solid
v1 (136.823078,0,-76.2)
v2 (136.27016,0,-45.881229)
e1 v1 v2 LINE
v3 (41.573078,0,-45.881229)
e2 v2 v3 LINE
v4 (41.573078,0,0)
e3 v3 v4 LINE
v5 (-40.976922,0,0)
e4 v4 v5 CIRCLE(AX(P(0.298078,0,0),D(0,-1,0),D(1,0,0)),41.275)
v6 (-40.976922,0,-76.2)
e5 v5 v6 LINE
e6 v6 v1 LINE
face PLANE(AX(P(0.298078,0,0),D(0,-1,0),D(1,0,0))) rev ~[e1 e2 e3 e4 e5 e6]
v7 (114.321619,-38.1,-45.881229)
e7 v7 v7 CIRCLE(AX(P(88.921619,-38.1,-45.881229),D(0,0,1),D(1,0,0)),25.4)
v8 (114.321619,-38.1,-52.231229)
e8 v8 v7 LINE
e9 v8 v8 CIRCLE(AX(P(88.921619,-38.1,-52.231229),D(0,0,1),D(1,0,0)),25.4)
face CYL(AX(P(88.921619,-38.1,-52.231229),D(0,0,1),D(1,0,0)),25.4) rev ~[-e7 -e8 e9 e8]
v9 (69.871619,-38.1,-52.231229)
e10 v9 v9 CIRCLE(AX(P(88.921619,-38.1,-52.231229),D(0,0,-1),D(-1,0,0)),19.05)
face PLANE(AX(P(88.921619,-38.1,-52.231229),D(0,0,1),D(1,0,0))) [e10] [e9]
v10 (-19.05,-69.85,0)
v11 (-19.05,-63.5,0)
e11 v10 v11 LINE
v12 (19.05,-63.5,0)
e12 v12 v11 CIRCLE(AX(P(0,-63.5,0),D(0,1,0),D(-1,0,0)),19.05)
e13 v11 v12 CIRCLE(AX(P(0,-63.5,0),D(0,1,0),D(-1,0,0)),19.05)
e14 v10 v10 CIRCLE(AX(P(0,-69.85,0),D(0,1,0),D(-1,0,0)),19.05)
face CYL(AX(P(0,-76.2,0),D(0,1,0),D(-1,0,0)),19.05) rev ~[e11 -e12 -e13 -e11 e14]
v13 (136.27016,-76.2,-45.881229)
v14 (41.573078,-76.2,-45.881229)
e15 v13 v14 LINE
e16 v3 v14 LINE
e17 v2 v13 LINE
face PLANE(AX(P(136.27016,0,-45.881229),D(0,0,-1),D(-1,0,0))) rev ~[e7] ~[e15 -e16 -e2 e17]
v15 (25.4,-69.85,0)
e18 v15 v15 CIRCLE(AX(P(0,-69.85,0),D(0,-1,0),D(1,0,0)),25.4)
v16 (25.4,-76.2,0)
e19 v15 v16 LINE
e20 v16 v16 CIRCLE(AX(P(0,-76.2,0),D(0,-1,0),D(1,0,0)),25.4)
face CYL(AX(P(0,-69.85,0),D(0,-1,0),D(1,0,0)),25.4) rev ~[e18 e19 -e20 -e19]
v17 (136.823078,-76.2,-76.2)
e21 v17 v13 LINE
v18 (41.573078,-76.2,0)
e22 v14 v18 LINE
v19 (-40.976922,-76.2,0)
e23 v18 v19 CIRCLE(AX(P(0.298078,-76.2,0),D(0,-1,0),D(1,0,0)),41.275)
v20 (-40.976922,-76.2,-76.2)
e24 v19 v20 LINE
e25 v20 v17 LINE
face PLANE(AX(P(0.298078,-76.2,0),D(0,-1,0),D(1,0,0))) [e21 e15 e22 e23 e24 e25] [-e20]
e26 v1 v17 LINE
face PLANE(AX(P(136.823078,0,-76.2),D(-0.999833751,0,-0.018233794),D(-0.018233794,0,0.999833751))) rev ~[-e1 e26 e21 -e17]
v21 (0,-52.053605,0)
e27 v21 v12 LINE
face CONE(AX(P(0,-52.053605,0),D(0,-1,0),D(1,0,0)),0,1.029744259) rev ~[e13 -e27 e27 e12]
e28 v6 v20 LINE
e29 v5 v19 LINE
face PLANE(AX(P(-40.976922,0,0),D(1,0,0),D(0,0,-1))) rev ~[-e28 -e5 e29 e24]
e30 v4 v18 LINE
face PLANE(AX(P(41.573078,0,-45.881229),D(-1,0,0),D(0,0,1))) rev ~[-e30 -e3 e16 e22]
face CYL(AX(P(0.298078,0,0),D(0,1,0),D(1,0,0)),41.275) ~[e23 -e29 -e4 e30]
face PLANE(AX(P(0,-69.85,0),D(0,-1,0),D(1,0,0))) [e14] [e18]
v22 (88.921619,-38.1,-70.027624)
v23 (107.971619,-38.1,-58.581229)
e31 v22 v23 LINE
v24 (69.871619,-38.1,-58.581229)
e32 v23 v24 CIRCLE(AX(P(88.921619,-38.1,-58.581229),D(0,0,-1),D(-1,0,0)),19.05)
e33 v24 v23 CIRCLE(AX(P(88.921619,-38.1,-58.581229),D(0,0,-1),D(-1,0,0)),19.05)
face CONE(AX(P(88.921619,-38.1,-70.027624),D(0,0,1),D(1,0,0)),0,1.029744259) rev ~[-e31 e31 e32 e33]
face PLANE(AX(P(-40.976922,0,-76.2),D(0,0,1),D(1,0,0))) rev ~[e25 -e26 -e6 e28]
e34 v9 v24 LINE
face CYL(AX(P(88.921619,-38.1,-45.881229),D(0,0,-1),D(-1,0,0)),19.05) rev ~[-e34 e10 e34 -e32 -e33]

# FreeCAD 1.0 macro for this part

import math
import FreeCAD as App
import Part
import Sketcher

V = App.Vector
Q = App.Units.Quantity

doc = App.newDocument("Part")
body = doc.addObject("PartDesign::Body", "Body")

sketch1 = doc.addObject("Sketcher::SketchObject", "Sketch")
body.addObject(sketch1)
sketch1.AttachmentSupport = (doc.XZ_Plane, [""])
sketch1.MapMode = "FlatFace"
sketch1.addGeometry([
    Part.ArcOfCircle(Part.Circle(V(0, 0, 0), V(0, 0, 1), 41), math.radians(0), math.radians(180)),
    Part.LineSegment(V(-41, 0, 0), V(-41, -76, 0)),
    Part.LineSegment(V(-41, -76, 0), V(137, -76, 0)),
    Part.LineSegment(V(137, -76, 0), V(136, -46, 0)),
    Part.LineSegment(V(136, -46, 0), V(42, -46, 0)),
    Part.LineSegment(V(42, -46, 0), V(42, 0, 0)),
], False)
sketch1.addConstraint([
    Sketcher.Constraint("Tangent", 0, 2, 1, 1),
    Sketcher.Constraint("Coincident", 1, 2, 2, 1),
    Sketcher.Constraint("Coincident", 2, 2, 3, 1),
    Sketcher.Constraint("Coincident", 3, 2, 4, 1),
    Sketcher.Constraint("Coincident", 4, 2, 5, 1),
    Sketcher.Constraint("Tangent", 5, 2, 0, 1),
    Sketcher.Constraint("Vertical", 1),
    Sketcher.Constraint("Horizontal", 2),
    Sketcher.Constraint("Horizontal", 4),
    Sketcher.Constraint("Vertical", 5),
    Sketcher.Constraint("PointOnObject", 0, 3, -1),
    Sketcher.Constraint("DistanceX", 2, 1, 2, 2, Q("7 in")),
    Sketcher.Constraint("DistanceY", 1, 2, 1, 1, Q("3 in")),
    Sketcher.Constraint("Radius", 0, Q("1.625 in")),
    Sketcher.Constraint("DistanceX", 4, 2, 4, 1, Q("94.697082 mm")),
    Sketcher.Constraint("DistanceY", 5, 1, 5, 2, Q("45.881229 mm")),
    Sketcher.Constraint("DistanceX", -1, 1, 0, 3, Q("0.298078 mm")),
])
pad1 = doc.addObject("PartDesign::Pad", "Pad")
body.addObject(pad1)
pad1.Profile = sketch1
pad1.Length = Q("3 in")

sketch2 = doc.addObject("Sketcher::SketchObject", "Sketch001")
body.addObject(sketch2)
sketch2.AttachmentSupport = (doc.XZ_Plane, [""])
sketch2.MapMode = "FlatFace"
sketch2.AttachmentOffset = App.Placement(V(0, 0, 3 * 25.4), App.Rotation())
sketch2.addGeometry(Part.Circle(V(0, 0, 0), V(0, 0, 1), 19), False)
sketch2.addConstraint([
    Sketcher.Constraint("Coincident", 0, 3, -1, 1),
    Sketcher.Constraint("Diameter", 0, Q("1.5 in")),
])
doc.recompute()
hole = doc.addObject("PartDesign::Hole", "Hole")
body.addObject(hole)
hole.Profile = sketch2
hole.ThreadType = "None"
hole.Diameter = Q("1.5 in")
hole.DepthType = "Dimension"
hole.Depth = Q("0.5 in")
hole.DrillPoint = "Angled"
hole.DrillPointAngle = 118
hole.HoleCutType = "Counterbore"
hole.HoleCutDiameter = Q("2 in")
hole.HoleCutDepth = Q("0.25 in")

sketch3 = doc.addObject("Sketcher::SketchObject", "Sketch002")
body.addObject(sketch3)
sketch3.AttachmentSupport = (doc.XY_Plane, [""])
sketch3.MapMode = "FlatFace"
sketch3.AttachmentOffset = App.Placement(V(0, 0, -45.881229), App.Rotation())
sketch3.addGeometry(Part.Circle(V(89, -38, 0), V(0, 0, 1), 19), False)
sketch3.addConstraint([
    Sketcher.Constraint("Diameter", 0, Q("1.5 in")),
    Sketcher.Constraint("DistanceY", 0, 3, -1, 1, Q("1.5 in")),
    Sketcher.Constraint("DistanceX", -1, 1, 0, 3, Q("88.921619 mm")),
])
doc.recompute()
hole2 = doc.addObject("PartDesign::Hole", "Hole001")
body.addObject(hole2)
hole2.Profile = sketch3
hole2.ThreadType = "None"
hole2.Diameter = Q("1.5 in")
hole2.DepthType = "Dimension"
hole2.Depth = Q("0.5 in")
hole2.DrillPoint = "Angled"
hole2.DrillPointAngle = 118
hole2.HoleCutType = "Counterbore"
hole2.HoleCutDiameter = Q("2 in")
hole2.HoleCutDepth = Q("0.25 in")

doc.recompute()
